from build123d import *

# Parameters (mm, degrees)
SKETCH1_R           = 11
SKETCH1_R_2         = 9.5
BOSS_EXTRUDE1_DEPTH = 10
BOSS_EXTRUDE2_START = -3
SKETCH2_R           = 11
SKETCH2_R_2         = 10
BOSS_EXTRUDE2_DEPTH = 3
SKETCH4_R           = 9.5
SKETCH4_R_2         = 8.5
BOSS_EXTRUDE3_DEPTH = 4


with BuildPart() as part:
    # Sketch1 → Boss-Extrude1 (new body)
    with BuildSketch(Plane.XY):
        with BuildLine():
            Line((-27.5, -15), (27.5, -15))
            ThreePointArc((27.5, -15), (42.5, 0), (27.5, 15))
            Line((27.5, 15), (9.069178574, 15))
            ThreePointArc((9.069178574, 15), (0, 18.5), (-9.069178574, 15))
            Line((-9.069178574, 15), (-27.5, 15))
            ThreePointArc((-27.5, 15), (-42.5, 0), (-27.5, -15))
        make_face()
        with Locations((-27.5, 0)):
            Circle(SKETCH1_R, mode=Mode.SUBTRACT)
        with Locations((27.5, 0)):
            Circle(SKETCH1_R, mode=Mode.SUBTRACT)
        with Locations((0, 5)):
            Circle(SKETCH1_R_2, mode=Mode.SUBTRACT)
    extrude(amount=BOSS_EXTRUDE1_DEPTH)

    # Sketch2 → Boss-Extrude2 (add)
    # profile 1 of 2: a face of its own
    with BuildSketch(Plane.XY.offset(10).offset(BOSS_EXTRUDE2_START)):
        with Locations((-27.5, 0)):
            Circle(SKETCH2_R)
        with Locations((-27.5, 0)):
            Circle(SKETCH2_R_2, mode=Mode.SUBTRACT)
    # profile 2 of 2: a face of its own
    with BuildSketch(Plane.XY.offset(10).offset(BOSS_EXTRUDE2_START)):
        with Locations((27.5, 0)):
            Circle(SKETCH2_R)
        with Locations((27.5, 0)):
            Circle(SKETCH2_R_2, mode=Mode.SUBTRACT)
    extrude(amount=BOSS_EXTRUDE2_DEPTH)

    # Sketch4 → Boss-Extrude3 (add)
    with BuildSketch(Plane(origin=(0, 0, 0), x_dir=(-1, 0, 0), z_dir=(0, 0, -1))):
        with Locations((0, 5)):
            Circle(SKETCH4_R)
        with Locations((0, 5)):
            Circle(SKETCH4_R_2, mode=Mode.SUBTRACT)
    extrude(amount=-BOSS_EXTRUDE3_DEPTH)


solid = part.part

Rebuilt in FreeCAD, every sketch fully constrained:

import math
import FreeCAD as App
import Part
import Sketcher

V = App.Vector
Q = App.Units.Quantity

doc = App.newDocument("Part")
body = doc.addObject("PartDesign::Body", "Body")

sketch1 = doc.addObject("Sketcher::SketchObject", "Sketch")
body.addObject(sketch1)
sketch1.AttachmentSupport = (doc.XY_Plane, [""])
sketch1.MapMode = "FlatFace"
sketch1.addGeometry(Part.LineSegment(V(-27.5, -15, 0), V(27.5, -15, 0)), False)
sketch1.addGeometry(Part.ArcOfCircle(Part.Circle(V(27.5, 0, 0), V(0, 0, 1), 15), math.radians(-90), math.radians(90)), False)
sketch1.addGeometry(Part.LineSegment(V(27.5, 15, 0), V(9.069179, 15, 0)), False)
sketch1.addGeometry(Part.ArcOfCircle(Part.Circle(V(0, 5, 0), V(0, 0, 1), 13.5), math.radians(47.794554), math.radians(132.205446)), False)
sketch1.addGeometry(Part.LineSegment(V(-9.069179, 15, 0), V(-27.5, 15, 0)), False)
sketch1.addGeometry(Part.ArcOfCircle(Part.Circle(V(-27.5, 0, 0), V(0, 0, 1), 15), math.radians(90), math.radians(270)), False)
sketch1.addGeometry(Part.Circle(V(-27.5, 0, 0), V(0, 0, 1), 11), False)
sketch1.addGeometry(Part.Circle(V(27.5, 0, 0), V(0, 0, 1), 11), False)
sketch1.addGeometry(Part.Circle(V(0, 5, 0), V(0, 0, 1), 9.5), False)
sketch1.addConstraint(Sketcher.Constraint("Tangent", 0, 2, 1, 1))
sketch1.addConstraint(Sketcher.Constraint("Tangent", 1, 2, 2, 1))
sketch1.addConstraint(Sketcher.Constraint("Coincident", 2, 2, 3, 1))
sketch1.addConstraint(Sketcher.Constraint("Coincident", 3, 2, 4, 1))
sketch1.addConstraint(Sketcher.Constraint("Tangent", 4, 2, 5, 1))
sketch1.addConstraint(Sketcher.Constraint("Tangent", 5, 2, 0, 1))
sketch1.addConstraint(Sketcher.Constraint("Horizontal", 0))
sketch1.addConstraint(Sketcher.Constraint("Horizontal", 2))
sketch1.addConstraint(Sketcher.Constraint("Horizontal", 4))
sketch1.addConstraint(Sketcher.Constraint("Coincident", 6, 3, 5, 3))
sketch1.addConstraint(Sketcher.Constraint("Coincident", 7, 3, 1, 3))
sketch1.addConstraint(Sketcher.Constraint("Coincident", 8, 3, 3, 3))
sketch1.addConstraint(Sketcher.Constraint("Equal", 1, 5))
sketch1.addConstraint(Sketcher.Constraint("Equal", 6, 7))
sketch1.addConstraint(Sketcher.Constraint("Symmetric", 1, 3, 5, 3, -1, 1))
sketch1.addConstraint(Sketcher.Constraint("PointOnObject", 3, 3, -2))
sketch1.addConstraint(Sketcher.Constraint("Diameter", 6, Q("22 mm")))
sketch1.addConstraint(Sketcher.Constraint("Diameter", 8, Q("19 mm")))
sketch1.addConstraint(Sketcher.Constraint("Radius", 1, Q("15 mm")))
sketch1.addConstraint(Sketcher.Constraint("Radius", 3, Q("13.5 mm")))
sketch1.addConstraint(Sketcher.Constraint("DistanceX", 0, 1, 0, 2, Q("55 mm")))
sketch1.addConstraint(Sketcher.Constraint("DistanceY", -1, 1, 3, 3, Q("5 mm")))
pad1 = doc.addObject("PartDesign::Pad", "Pad")
body.addObject(pad1)
pad1.Profile = sketch1
pad1.Length = 10

sketch2 = doc.addObject("Sketcher::SketchObject", "Sketch001")
body.addObject(sketch2)
sketch2.AttachmentSupport = (doc.XY_Plane, [""])
sketch2.MapMode = "FlatFace"
sketch2.AttachmentOffset = App.Placement(V(0, 0, 7), App.Rotation())
sketch2.addGeometry(Part.Circle(V(-27.5, 0, 0), V(0, 0, 1), 11), False)
sketch2.addGeometry(Part.Circle(V(-27.5, 0, 0), V(0, 0, 1), 10), False)
sketch2.addGeometry(Part.Circle(V(27.5, 0, 0), V(0, 0, 1), 11), False)
sketch2.addGeometry(Part.Circle(V(27.5, 0, 0), V(0, 0, 1), 10), False)
sketch2.addConstraint(Sketcher.Constraint("Coincident", 1, 3, 0, 3))
sketch2.addConstraint(Sketcher.Constraint("Coincident", 3, 3, 2, 3))
sketch2.addConstraint(Sketcher.Constraint("Equal", 0, 2))
sketch2.addConstraint(Sketcher.Constraint("Equal", 1, 3))
sketch2.addConstraint(Sketcher.Constraint("Symmetric", 0, 3, 2, 3, -1, 1))
sketch2.addConstraint(Sketcher.Constraint("PointOnObject", 0, 3, -1))
sketch2.addConstraint(Sketcher.Constraint("Diameter", 0, Q("22 mm")))
sketch2.addConstraint(Sketcher.Constraint("Diameter", 1, Q("20 mm")))
sketch2.addConstraint(Sketcher.Constraint("DistanceX", 0, 3, 2, 3, Q("55 mm")))
pad2 = doc.addObject("PartDesign::Pad", "Pad001")
body.addObject(pad2)
pad2.Profile = sketch2
pad2.Length = 3

sketch3 = doc.addObject("Sketcher::SketchObject", "Sketch002")
body.addObject(sketch3)
sketch3.AttachmentSupport = (doc.XY_Plane, [""])
sketch3.MapMode = "FlatFace"
sketch3.addGeometry(Part.Circle(V(0, 5, 0), V(0, 0, 1), 9.5), False)
sketch3.addGeometry(Part.Circle(V(0, 5, 0), V(0, 0, 1), 8.5), False)
sketch3.addConstraint(Sketcher.Constraint("Coincident", 1, 3, 0, 3))
sketch3.addConstraint(Sketcher.Constraint("PointOnObject", 0, 3, -2))
sketch3.addConstraint(Sketcher.Constraint("Diameter", 0, Q("19 mm")))
sketch3.addConstraint(Sketcher.Constraint("Diameter", 1, Q("17 mm")))
sketch3.addConstraint(Sketcher.Constraint("DistanceY", -1, 1, 0, 3, Q("5 mm")))
pad3 = doc.addObject("PartDesign::Pad", "Pad002")
body.addObject(pad3)
pad3.Profile = sketch3
pad3.Length = 4

doc.recompute()
